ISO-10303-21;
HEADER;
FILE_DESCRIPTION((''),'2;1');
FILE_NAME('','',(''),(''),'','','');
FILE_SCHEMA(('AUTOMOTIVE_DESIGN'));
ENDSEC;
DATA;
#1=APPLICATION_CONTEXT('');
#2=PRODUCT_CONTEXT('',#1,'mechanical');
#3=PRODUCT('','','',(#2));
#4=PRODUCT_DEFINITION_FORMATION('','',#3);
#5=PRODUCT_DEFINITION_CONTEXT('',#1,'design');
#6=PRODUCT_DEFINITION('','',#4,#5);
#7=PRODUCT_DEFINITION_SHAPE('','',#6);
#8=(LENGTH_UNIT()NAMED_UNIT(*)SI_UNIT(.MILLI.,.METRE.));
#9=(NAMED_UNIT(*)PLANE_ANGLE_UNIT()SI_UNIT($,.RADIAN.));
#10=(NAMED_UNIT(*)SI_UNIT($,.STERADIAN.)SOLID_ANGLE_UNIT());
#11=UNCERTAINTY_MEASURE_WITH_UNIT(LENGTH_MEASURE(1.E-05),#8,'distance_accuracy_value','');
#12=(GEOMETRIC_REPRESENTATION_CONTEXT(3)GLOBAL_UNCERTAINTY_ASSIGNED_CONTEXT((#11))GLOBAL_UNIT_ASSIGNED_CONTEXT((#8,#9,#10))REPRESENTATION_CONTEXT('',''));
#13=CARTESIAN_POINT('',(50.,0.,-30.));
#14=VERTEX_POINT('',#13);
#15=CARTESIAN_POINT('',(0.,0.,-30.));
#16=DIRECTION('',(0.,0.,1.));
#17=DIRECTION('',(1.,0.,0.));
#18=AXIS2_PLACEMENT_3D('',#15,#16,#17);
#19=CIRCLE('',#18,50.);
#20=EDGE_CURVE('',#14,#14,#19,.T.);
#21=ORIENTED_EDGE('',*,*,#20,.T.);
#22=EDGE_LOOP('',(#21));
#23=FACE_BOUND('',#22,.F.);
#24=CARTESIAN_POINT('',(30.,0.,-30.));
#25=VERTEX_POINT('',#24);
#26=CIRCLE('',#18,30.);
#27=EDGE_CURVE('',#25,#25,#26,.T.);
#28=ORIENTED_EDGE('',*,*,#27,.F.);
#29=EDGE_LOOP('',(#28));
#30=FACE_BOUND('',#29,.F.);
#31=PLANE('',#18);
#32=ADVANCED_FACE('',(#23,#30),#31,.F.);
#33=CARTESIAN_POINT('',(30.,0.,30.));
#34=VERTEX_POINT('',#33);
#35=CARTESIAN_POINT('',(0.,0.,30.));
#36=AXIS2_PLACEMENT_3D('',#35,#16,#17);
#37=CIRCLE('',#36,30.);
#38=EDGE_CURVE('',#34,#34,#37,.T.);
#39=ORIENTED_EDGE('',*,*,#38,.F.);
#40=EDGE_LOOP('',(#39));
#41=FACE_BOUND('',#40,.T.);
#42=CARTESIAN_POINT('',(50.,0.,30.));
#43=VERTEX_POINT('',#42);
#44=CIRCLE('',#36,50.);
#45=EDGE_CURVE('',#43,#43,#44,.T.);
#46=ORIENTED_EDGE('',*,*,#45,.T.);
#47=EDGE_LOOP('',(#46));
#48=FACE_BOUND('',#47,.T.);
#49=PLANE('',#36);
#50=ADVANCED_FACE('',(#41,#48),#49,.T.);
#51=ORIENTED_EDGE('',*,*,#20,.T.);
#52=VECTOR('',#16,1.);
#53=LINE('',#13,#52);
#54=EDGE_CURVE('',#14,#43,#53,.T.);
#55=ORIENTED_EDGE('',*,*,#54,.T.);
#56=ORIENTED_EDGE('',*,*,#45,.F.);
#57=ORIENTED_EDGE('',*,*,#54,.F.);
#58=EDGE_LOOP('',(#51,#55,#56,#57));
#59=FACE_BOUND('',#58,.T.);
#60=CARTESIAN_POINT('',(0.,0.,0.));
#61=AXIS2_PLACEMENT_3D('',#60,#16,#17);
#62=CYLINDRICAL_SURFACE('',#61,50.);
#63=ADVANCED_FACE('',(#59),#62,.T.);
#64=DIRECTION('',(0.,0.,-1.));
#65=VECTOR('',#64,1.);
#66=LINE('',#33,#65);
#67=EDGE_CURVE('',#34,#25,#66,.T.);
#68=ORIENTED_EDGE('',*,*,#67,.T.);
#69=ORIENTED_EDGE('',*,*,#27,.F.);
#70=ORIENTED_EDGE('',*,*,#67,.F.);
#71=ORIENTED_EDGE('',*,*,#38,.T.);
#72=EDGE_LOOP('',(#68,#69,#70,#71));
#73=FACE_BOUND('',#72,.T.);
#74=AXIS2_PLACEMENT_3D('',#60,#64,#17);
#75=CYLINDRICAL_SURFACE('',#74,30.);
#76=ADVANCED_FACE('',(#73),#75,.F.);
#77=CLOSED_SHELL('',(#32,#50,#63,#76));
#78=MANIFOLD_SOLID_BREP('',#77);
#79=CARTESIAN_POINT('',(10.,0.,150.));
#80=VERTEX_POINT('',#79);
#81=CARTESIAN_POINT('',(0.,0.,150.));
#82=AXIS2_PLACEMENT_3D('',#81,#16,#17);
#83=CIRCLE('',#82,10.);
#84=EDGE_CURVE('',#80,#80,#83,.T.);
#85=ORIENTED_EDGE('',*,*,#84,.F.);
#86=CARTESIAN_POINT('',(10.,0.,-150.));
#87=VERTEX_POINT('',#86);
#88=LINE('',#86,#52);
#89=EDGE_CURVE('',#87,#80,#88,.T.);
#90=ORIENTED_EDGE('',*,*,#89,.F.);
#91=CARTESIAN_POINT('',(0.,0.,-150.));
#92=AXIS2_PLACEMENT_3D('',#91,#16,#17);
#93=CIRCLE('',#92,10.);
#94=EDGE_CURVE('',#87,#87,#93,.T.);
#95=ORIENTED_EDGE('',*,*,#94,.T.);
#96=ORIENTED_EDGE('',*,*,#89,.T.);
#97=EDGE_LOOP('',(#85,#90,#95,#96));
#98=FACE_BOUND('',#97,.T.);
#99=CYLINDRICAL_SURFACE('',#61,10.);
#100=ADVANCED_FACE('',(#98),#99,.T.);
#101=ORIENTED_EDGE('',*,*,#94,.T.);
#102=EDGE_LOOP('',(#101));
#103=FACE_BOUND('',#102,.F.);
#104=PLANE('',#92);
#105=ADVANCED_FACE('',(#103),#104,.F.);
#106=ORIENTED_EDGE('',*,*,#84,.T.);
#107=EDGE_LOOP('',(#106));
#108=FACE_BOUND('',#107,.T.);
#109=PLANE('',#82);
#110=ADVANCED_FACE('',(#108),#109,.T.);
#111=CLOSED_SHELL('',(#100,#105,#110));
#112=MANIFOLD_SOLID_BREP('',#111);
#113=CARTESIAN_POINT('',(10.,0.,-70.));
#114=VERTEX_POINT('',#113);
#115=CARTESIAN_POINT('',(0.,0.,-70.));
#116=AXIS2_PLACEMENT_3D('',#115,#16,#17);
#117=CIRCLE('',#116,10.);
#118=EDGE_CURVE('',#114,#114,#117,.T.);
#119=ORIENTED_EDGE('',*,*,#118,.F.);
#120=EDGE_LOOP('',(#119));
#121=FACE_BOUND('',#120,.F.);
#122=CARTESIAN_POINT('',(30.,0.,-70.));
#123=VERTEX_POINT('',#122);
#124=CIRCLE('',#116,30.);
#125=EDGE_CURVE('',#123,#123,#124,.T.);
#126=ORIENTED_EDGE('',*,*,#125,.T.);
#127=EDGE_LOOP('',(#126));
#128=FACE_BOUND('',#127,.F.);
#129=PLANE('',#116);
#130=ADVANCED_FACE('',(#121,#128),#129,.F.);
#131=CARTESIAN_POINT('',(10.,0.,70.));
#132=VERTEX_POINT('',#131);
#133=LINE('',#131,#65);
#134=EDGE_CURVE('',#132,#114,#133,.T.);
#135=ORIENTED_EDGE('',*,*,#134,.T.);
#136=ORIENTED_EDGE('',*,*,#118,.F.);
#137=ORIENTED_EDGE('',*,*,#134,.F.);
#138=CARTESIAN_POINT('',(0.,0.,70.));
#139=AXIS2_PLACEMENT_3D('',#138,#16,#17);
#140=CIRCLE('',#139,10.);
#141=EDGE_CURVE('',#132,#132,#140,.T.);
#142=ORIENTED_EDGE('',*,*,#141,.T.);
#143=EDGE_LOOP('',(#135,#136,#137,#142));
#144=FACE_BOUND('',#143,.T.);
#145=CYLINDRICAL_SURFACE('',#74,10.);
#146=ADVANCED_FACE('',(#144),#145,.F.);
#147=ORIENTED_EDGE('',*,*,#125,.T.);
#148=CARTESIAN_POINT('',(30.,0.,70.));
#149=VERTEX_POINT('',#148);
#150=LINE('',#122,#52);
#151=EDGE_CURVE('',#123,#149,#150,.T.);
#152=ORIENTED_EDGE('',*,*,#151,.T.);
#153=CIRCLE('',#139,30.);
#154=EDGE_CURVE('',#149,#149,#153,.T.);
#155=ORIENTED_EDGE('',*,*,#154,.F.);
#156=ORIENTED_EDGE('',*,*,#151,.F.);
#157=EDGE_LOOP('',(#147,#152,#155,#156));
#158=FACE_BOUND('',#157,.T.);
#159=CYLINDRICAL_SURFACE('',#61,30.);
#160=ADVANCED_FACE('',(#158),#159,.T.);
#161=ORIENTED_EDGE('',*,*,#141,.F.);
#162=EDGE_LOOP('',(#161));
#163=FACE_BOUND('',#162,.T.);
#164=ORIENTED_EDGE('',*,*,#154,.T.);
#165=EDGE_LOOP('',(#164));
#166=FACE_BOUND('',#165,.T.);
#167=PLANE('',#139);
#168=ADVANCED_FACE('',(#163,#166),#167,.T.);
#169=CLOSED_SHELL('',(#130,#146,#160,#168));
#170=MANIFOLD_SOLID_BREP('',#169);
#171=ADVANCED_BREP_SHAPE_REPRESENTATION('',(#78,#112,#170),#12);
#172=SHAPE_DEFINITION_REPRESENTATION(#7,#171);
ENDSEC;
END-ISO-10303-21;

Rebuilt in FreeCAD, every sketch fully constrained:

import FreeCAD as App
import Part
import Sketcher

V = App.Vector
Q = App.Units.Quantity

doc = App.newDocument("Part")
body = doc.addObject("PartDesign::Body", "Body")

# Sketch on XY plane
sketch1 = body.newObject("Sketcher::SketchObject", "Sketch")
sketch1.AttachmentSupport = (doc.getObject("XY_Plane"), [""])
sketch1.MapMode = "FlatFace"
sketch1.addGeometry(Part.Circle(V(0, 0, 0), V(0, 0, 1), 10), False)
sketch1.addConstraint(Sketcher.Constraint("Coincident", 0, 3, -1, 1))
sketch1.addConstraint(Sketcher.Constraint("Diameter", 0, Q("20 mm")))
pad1 = body.newObject("PartDesign::Pad", "Pad")
pad1.Profile = sketch1
pad1.Length = 300
pad1.Midplane = True
body2 = doc.addObject("PartDesign::Body", "Body001")

# Sketch on XY plane
sketch2 = body2.newObject("Sketcher::SketchObject", "Sketch001")
sketch2.AttachmentSupport = (doc.getObject("XY_Plane001"), [""])
sketch2.MapMode = "FlatFace"
sketch2.addGeometry(Part.Circle(V(0, 0, 0), V(0, 0, 1), 50), False)
sketch2.addGeometry(Part.Circle(V(0, 0, 0), V(0, 0, 1), 30), False)
sketch2.addConstraint(Sketcher.Constraint("Coincident", 0, 3, -1, 1))
sketch2.addConstraint(Sketcher.Constraint("Coincident", 1, 3, -1, 1))
sketch2.addConstraint(Sketcher.Constraint("Diameter", 0, Q("100 mm")))
sketch2.addConstraint(Sketcher.Constraint("Diameter", 1, Q("60 mm")))
pad2 = body2.newObject("PartDesign::Pad", "Pad001")
pad2.Profile = sketch2
pad2.Length = 60
pad2.Midplane = True
body3 = doc.addObject("PartDesign::Body", "Body002")

# Sketch on XY plane
sketch3 = body3.newObject("Sketcher::SketchObject", "Sketch002")
sketch3.AttachmentSupport = (doc.getObject("XY_Plane002"), [""])
sketch3.MapMode = "FlatFace"
sketch3.addGeometry(Part.Circle(V(0, 0, 0), V(0, 0, 1), 30), False)
sketch3.addGeometry(Part.Circle(V(0, 0, 0), V(0, 0, 1), 10), False)
sketch3.addConstraint(Sketcher.Constraint("Coincident", 0, 3, -1, 1))
sketch3.addConstraint(Sketcher.Constraint("Coincident", 1, 3, -1, 1))
sketch3.addConstraint(Sketcher.Constraint("Diameter", 0, Q("60 mm")))
sketch3.addConstraint(Sketcher.Constraint("Diameter", 1, Q("20 mm")))
pad3 = body3.newObject("PartDesign::Pad", "Pad002")
pad3.Profile = sketch3
pad3.Length = 140
pad3.Midplane = True

doc.recompute()
